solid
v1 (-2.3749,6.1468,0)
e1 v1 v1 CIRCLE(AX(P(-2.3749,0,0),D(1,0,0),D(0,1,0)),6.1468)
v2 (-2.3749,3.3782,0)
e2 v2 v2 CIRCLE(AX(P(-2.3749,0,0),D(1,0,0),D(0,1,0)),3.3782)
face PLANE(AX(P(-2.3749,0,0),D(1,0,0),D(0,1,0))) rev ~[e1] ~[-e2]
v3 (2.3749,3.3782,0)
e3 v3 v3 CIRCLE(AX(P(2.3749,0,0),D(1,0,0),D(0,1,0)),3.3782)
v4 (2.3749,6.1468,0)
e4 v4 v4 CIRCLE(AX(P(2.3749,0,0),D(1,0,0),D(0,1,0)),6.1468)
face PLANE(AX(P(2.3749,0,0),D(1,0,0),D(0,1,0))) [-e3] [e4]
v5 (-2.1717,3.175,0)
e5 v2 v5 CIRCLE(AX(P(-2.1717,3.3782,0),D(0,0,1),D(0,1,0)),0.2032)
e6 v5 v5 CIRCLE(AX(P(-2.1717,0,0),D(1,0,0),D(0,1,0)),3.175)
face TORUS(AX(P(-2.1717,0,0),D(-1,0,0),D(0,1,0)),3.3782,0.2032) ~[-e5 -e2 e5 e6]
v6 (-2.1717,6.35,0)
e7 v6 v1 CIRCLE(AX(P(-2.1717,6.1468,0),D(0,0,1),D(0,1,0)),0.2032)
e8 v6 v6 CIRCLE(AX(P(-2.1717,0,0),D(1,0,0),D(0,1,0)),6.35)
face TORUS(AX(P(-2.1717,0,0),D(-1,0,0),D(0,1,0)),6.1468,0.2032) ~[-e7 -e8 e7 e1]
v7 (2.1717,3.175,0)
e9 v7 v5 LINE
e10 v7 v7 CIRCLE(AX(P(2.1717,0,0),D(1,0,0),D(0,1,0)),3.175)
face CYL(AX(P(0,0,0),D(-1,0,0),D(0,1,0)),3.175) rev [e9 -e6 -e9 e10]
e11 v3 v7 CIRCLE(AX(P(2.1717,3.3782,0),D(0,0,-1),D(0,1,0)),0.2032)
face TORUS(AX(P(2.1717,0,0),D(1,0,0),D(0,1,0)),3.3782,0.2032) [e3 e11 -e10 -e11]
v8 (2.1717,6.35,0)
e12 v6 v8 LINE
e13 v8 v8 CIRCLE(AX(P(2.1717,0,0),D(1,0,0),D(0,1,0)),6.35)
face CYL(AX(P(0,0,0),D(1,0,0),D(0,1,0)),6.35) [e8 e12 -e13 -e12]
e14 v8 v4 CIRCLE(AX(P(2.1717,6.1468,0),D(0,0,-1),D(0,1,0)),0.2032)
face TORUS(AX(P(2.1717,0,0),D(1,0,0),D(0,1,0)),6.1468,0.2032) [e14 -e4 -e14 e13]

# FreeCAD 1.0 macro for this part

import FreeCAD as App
import Part
import Sketcher
Q = App.Units.Quantity


def edges_at(feature, points):
    """Names of the edges that pass closest to the given points."""
    edges = feature.Shape.Edges
    near = lambda p: min(range(len(edges)), key=lambda i: edges[i].distToShape(Part.Vertex(*p))[0])
    return sorted({f"Edge{near(p) + 1}" for p in points})

doc = App.newDocument("Part")
body = doc.addObject("PartDesign::Body", "Body")

# Sketch on YZ plane
sketch1 = doc.addObject("Sketcher::SketchObject", "Sketch")
body.addObject(sketch1)
sketch1.AttachmentSupport = (doc.YZ_Plane, [""])
sketch1.MapMode = "FlatFace"
sketch1.addGeometry(Part.Circle(App.Vector(0, 0, 0), App.Vector(0, 0, 1), 6.3), False)
sketch1.addGeometry(Part.Circle(App.Vector(0, 0, 0), App.Vector(0, 0, 1), 3.2), False)
sketch1.addConstraint(Sketcher.Constraint("Coincident", 0, 3, -1, 1))
sketch1.addConstraint(Sketcher.Constraint("Coincident", 1, 3, -1, 1))
sketch1.addConstraint(Sketcher.Constraint("Diameter", 0, Q("0.5 in")))
sketch1.addConstraint(Sketcher.Constraint("Diameter", 1, Q("0.25 in")))
pad1 = doc.addObject("PartDesign::Pad", "Pad")
body.addObject(pad1)
pad1.Profile = sketch1
pad1.Length = Q("0.187 in")
pad1.Midplane = True
doc.recompute()

fillet = doc.addObject("PartDesign::Fillet", "Fillet")
body.addObject(fillet)
fillet.Base = (pad1, edges_at(pad1, [(2.375, -6.35, 0)]))
fillet.Radius = Q("0.008 in")
doc.recompute()

fillet2 = doc.addObject("PartDesign::Fillet", "Fillet001")
body.addObject(fillet2)
fillet2.Base = (fillet, edges_at(fillet, [(2.375, -3.175, 0)]))
fillet2.Radius = Q("0.008 in")
doc.recompute()

fillet3 = doc.addObject("PartDesign::Fillet", "Fillet002")
body.addObject(fillet3)
fillet3.Base = (fillet2, edges_at(fillet2, [(-2.375, -6.35, 0)]))
fillet3.Radius = Q("0.008 in")
doc.recompute()

fillet4 = doc.addObject("PartDesign::Fillet", "Fillet003")
body.addObject(fillet4)
fillet4.Base = (fillet3, edges_at(fillet3, [(-2.375, -3.175, 0)]))
fillet4.Radius = Q("0.008 in")

doc.recompute()
